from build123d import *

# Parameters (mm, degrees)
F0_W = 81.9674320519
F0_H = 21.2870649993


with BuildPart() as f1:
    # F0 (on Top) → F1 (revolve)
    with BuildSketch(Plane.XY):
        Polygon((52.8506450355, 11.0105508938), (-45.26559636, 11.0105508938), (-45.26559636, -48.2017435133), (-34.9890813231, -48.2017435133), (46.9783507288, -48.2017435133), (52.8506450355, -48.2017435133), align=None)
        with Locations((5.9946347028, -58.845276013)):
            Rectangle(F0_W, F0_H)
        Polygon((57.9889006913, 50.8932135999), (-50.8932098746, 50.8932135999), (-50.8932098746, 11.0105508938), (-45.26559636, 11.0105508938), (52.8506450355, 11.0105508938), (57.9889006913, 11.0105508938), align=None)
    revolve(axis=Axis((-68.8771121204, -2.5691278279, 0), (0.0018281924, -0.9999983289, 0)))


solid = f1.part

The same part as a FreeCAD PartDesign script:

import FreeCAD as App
import Part
import Sketcher

V = App.Vector


def add_polygon(sketch, points):
    """Adds a closed chain of lines whose ends are joined by coincident constraints."""
    first, n = sketch.GeometryCount, len(points)
    for a, b in zip(points, points[1:] + points[:1]):
        sketch.addGeometry(Part.LineSegment(App.Vector(*a, 0), App.Vector(*b, 0)), False)
    for i in range(n):
        sketch.addConstraint(Sketcher.Constraint("Coincident", first + i, 2, first + (i + 1) % n, 1))

doc = App.newDocument("Part")
body = doc.addObject("PartDesign::Body", "Body")

sketch1 = body.newObject("Sketcher::SketchObject", "Sketch")
sketch1.AttachmentSupport = (doc.getObject("XY_Plane"), [""])
sketch1.MapMode = "FlatFace"
add_polygon(sketch1, [(-45.265596, 11.010551), (-45.265596, -48.201744), (-34.989081, -48.201744), (-34.989081, -69.488809), (46.978351, -69.488809), (46.978351, -48.201744), (52.850645, -48.201744), (52.850645, 11.010551), (57.988901, 11.010551), (57.988901, 50.893214), (-50.89321, 50.893214), (-50.89321, 11.010551)])
sketch1.addGeometry(Part.LineSegment(V(-68.974791, 50.860157, 0), V(-68.754383, -69.700391, 0)), True)
sketch1.addConstraint(Sketcher.Constraint("Vertical", 0))
sketch1.addConstraint(Sketcher.Constraint("Horizontal", 1))
sketch1.addConstraint(Sketcher.Constraint("Vertical", 2))
sketch1.addConstraint(Sketcher.Constraint("Horizontal", 3))
sketch1.addConstraint(Sketcher.Constraint("Vertical", 4))
sketch1.addConstraint(Sketcher.Constraint("Horizontal", 5))
sketch1.addConstraint(Sketcher.Constraint("Vertical", 6))
sketch1.addConstraint(Sketcher.Constraint("Horizontal", 7))
sketch1.addConstraint(Sketcher.Constraint("Vertical", 8))
sketch1.addConstraint(Sketcher.Constraint("Horizontal", 9))
sketch1.addConstraint(Sketcher.Constraint("Vertical", 10))
sketch1.addConstraint(Sketcher.Constraint("Horizontal", 11))
sketch1.addConstraint(Sketcher.Constraint("Horizontal", 1, 2, 4, 2))
sketch1.addConstraint(Sketcher.Constraint("Horizontal", 7, 2, 10, 2))
sketch1.addConstraint(Sketcher.Constraint("DistanceX", 9, 2, 9, 1, 108.882111))
sketch1.addConstraint(Sketcher.Constraint("DistanceX", -1, 1, 7, 2, 57.988901))
sketch1.addConstraint(Sketcher.Constraint("DistanceY", 0, 2, 12, 1, 99.0619))
sketch1.addConstraint(Sketcher.Constraint("DistanceX", 12, 2, 2, 2, 33.765302))
sketch1.addConstraint(Sketcher.Constraint("Distance", 12, 120.560749))
sketch1.addConstraint(Sketcher.Constraint("DistanceX", 1, 1, 1, 2, 10.276515))
sketch1.addConstraint(Sketcher.Constraint("DistanceX", 3, 1, 3, 2, 81.967432))
sketch1.addConstraint(Sketcher.Constraint("DistanceX", 5, 1, 5, 2, 5.872294))
sketch1.addConstraint(Sketcher.Constraint("DistanceX", 7, 1, 7, 2, 5.138256))
sketch1.addConstraint(Sketcher.Constraint("DistanceY", 0, 2, 0, 1, 59.212294))
sketch1.addConstraint(Sketcher.Constraint("DistanceY", 2, 2, 2, 1, 21.287065))
sketch1.addConstraint(Sketcher.Constraint("DistanceY", 8, 1, 8, 2, 39.882663))
sketch1.addConstraint(Sketcher.Constraint("DistanceY", 2, 2, -1, 1, 69.488809))
sketch1.addConstraint(Sketcher.Constraint("DistanceX", 12, 1, -1, 1, 68.974791))
revolution = body.newObject("PartDesign::Revolution", "Revolution")
revolution.Profile = sketch1
revolution.ReferenceAxis = (sketch1, ["Axis0"])
revolution.Angle = 360

doc.recompute()
